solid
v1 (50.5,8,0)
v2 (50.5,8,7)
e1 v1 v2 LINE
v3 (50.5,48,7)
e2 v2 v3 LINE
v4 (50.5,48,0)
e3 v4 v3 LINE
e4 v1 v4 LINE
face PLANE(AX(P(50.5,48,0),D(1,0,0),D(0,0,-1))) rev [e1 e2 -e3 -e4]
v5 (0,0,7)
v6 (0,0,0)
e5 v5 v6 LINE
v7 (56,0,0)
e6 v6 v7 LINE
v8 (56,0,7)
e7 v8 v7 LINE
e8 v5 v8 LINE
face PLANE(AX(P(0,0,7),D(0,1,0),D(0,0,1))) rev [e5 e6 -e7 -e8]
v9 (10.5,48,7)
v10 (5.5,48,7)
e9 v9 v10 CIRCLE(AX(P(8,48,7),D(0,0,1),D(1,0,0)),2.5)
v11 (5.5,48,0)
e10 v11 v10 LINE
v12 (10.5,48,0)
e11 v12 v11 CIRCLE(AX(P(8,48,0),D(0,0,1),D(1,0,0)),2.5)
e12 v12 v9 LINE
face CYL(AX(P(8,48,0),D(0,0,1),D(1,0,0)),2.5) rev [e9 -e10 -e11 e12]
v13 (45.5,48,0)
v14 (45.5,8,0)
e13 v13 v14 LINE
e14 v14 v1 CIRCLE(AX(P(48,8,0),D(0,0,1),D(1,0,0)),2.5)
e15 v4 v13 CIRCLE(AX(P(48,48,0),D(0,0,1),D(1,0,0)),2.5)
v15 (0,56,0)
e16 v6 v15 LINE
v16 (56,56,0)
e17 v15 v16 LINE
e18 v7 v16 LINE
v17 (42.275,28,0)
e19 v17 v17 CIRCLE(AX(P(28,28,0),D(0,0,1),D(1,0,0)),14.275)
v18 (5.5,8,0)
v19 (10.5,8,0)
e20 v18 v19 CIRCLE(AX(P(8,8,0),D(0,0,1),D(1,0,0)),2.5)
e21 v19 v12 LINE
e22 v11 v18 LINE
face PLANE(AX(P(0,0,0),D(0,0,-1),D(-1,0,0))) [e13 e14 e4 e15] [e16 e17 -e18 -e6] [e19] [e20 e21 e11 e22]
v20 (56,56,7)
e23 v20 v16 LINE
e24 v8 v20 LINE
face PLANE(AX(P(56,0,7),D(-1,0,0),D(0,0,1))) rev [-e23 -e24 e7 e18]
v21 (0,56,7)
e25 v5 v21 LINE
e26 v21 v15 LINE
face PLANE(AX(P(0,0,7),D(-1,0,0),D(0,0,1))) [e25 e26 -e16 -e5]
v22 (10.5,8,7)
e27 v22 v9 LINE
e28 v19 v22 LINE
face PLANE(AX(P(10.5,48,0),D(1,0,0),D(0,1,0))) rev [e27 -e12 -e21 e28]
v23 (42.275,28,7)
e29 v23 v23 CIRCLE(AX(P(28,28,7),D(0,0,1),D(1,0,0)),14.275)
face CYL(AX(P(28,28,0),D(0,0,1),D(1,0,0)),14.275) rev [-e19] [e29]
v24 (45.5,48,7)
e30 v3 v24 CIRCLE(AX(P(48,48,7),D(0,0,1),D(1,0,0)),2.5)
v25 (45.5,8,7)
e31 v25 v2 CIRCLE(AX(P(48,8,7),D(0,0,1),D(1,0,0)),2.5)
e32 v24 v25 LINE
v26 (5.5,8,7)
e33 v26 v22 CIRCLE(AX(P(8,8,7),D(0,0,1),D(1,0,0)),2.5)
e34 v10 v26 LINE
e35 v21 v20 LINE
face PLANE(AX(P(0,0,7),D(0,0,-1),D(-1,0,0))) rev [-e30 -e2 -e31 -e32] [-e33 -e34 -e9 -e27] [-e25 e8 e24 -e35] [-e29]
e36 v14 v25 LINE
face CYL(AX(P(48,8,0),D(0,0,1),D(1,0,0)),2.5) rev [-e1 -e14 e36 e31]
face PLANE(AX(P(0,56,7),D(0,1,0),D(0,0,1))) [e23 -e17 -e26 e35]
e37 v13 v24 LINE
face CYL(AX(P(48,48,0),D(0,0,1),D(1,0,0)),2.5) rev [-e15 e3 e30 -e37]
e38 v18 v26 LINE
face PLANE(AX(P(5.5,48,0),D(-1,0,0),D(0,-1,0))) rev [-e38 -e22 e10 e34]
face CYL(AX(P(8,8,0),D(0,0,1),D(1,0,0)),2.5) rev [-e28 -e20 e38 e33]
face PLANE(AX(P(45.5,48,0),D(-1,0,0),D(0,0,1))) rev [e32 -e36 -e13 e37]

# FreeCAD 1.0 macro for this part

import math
import FreeCAD as App
import Part
import Sketcher
from FreeCAD import Vector

doc = App.newDocument("Part")
body = doc.addObject("PartDesign::Body", "Body")

# Sketch on XY plane
sketch1 = body.newObject("Sketcher::SketchObject", "Sketch")
sketch1.AttachmentSupport = (doc.getObject("XY_Plane"), [""])
sketch1.MapMode = "FlatFace"
sketch1.addGeometry([
    Part.LineSegment(Vector(0, 56, 0), Vector(0, 0, 0)),
    Part.LineSegment(Vector(0, 0, 0), Vector(56, 0, 0)),
    Part.LineSegment(Vector(56, 0, 0), Vector(56, 56, 0)),
    Part.LineSegment(Vector(56, 56, 0), Vector(0, 56, 0)),
], False)
sketch1.addConstraint([
    Sketcher.Constraint("Coincident", 0, 2, 1, 1),
    Sketcher.Constraint("Coincident", 1, 2, 2, 1),
    Sketcher.Constraint("Coincident", 2, 2, 3, 1),
    Sketcher.Constraint("Coincident", 3, 2, 0, 1),
    Sketcher.Constraint("Vertical", 0),
    Sketcher.Constraint("Horizontal", 1),
    Sketcher.Constraint("Vertical", 2),
    Sketcher.Constraint("Horizontal", 3),
    Sketcher.Constraint("Coincident", 0, 2, -1, 1),
    Sketcher.Constraint("Equal", 3, 0),
    Sketcher.Constraint("DistanceX", 1, 1, 1, 2, 56.0),
])
pad1 = body.newObject("PartDesign::Pad", "Pad")
pad1.Profile = sketch1
pad1.Length = 7

# Sketch on XY plane
sketch2 = body.newObject("Sketcher::SketchObject", "Sketch001")
sketch2.AttachmentSupport = (doc.getObject("XY_Plane"), [""])
sketch2.MapMode = "FlatFace"
sketch2.AttachmentOffset = App.Placement(Vector(0, 0, 7), App.Rotation())
sketch2.addGeometry([
    Part.Circle(Vector(28, 28, 0), Vector(0, 0, 1), 14.275),  # 0
    Part.LineSegment(Vector(10.5, 8, 0), Vector(10.5, 48, 0)),  # 1
    Part.ArcOfCircle(Part.Circle(Vector(8, 48, 0), Vector(0, 0, 1), 2.5), math.radians(0), math.radians(180)),  # 2
    Part.LineSegment(Vector(5.5, 48, 0), Vector(5.5, 8, 0)),  # 3
    Part.ArcOfCircle(Part.Circle(Vector(8, 8, 0), Vector(0, 0, 1), 2.5), math.radians(180), math.radians(360)),  # 4
    Part.LineSegment(Vector(50.5, 8, 0), Vector(50.5, 48, 0)),  # 5
    Part.ArcOfCircle(Part.Circle(Vector(48, 48, 0), Vector(0, 0, 1), 2.5), math.radians(0), math.radians(180)),  # 6
    Part.LineSegment(Vector(45.5, 48, 0), Vector(45.5, 8, 0)),  # 7
    Part.ArcOfCircle(Part.Circle(Vector(48, 8, 0), Vector(0, 0, 1), 2.5), math.radians(180), math.radians(360)),  # 8
], False)
sketch2.addConstraint([
    Sketcher.Constraint("Tangent", 1, 2, 2, 1),
    Sketcher.Constraint("Tangent", 2, 2, 3, 1),
    Sketcher.Constraint("Tangent", 3, 2, 4, 1),
    Sketcher.Constraint("Tangent", 4, 2, 1, 1),
    Sketcher.Constraint("Tangent", 5, 2, 6, 1),
    Sketcher.Constraint("Tangent", 6, 2, 7, 1),
    Sketcher.Constraint("Tangent", 7, 2, 8, 1),
    Sketcher.Constraint("Tangent", 8, 2, 5, 1),
    Sketcher.Constraint("Vertical", 1),
    Sketcher.Constraint("Vertical", 3),
    Sketcher.Constraint("Vertical", 5),
    Sketcher.Constraint("Vertical", 7),
    Sketcher.Constraint("Equal", 4, 6),
    Sketcher.Constraint("Horizontal", 2, 3, 6, 3),
    Sketcher.Constraint("Horizontal", 4, 3, 8, 3),
    Sketcher.Constraint("Radius", 2, 2.5),
    Sketcher.Constraint("Diameter", 0, 28.55),
    Sketcher.Constraint("DistanceY", 1, 1, 1, 2, 40.0),
    Sketcher.Constraint("DistanceX", -1, 1, 0, 3, 28.0),
    Sketcher.Constraint("DistanceY", -1, 1, 0, 3, 28.0),
    Sketcher.Constraint("DistanceX", -1, 1, 2, 3, 8.0),
    Sketcher.Constraint("DistanceY", -1, 1, 2, 3, 48.0),
    Sketcher.Constraint("DistanceX", -1, 1, 6, 3, 48.0),
])
pocket1 = body.newObject("PartDesign::Pocket", "Pocket")
pocket1.Profile = sketch2
pocket1.Type = "ThroughAll"

doc.recompute()
